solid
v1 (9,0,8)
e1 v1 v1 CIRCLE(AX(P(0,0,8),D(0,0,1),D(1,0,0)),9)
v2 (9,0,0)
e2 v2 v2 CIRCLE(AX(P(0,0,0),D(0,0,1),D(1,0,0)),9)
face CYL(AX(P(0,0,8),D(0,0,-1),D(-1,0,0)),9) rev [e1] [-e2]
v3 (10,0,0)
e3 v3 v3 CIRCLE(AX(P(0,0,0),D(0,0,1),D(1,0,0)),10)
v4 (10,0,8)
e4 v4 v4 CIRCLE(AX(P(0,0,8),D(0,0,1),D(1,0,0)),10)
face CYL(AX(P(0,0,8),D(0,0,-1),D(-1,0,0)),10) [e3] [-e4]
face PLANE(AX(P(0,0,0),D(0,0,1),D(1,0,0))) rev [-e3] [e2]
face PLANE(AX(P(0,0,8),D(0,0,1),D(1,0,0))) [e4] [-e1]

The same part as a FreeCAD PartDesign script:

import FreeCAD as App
import Part
import Sketcher

V = App.Vector

doc = App.newDocument("Part")
params = doc.addObject("Spreadsheet::Sheet", "Params")
for row, (alias, value) in enumerate([
    ("sketch1_diameter", "20 mm"),
    ("sketch1_diameter2", "18 mm"),
    ("pad1_length", "8 mm"),
], start=1):
    params.set(f"A{row}", alias)
    params.set(f"B{row}", "=" + value)
    params.setAlias(f"B{row}", alias)

body = doc.addObject("PartDesign::Body", "Body")

sketch1 = body.newObject("Sketcher::SketchObject", "Sketch")
sketch1.AttachmentSupport = (doc.getObject("XY_Plane"), [""])
sketch1.MapMode = "FlatFace"
sketch1.addGeometry([
    Part.Circle(V(0, 0, 0), V(0, 0, 1), 10),
    Part.Circle(V(0, 0, 0), V(0, 0, 1), 9),
], False)
sketch1.addConstraint([
    Sketcher.Constraint("Coincident", 0, 3, -1, 1),
    Sketcher.Constraint("Coincident", 1, 3, -1, 1),
    Sketcher.Constraint("Diameter", 0, 20.0),
    Sketcher.Constraint("Diameter", 1, 18.0),
])
sketch1.setExpression("Constraints[2]", "Params.sketch1_diameter")
sketch1.setExpression("Constraints[3]", "Params.sketch1_diameter2")
pad1 = body.newObject("PartDesign::Pad", "Pad")
pad1.Profile = sketch1
pad1.setExpression("Length", "Params.pad1_length")

doc.recompute()
